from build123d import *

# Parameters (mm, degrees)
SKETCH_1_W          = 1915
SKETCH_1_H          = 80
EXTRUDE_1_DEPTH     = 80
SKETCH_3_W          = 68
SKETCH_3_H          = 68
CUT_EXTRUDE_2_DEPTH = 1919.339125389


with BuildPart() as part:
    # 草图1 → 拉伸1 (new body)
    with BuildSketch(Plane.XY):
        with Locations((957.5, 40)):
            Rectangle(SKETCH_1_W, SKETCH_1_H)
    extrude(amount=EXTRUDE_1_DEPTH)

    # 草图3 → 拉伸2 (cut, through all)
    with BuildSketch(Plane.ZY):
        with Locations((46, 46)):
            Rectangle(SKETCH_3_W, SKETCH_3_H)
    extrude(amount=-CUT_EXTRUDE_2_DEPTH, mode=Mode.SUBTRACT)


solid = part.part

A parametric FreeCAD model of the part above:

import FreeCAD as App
import Part
import Sketcher

V = App.Vector
Q = App.Units.Quantity

doc = App.newDocument("Part")
body = doc.addObject("PartDesign::Body", "Body")

sketch1 = doc.addObject("Sketcher::SketchObject", "Sketch")
body.addObject(sketch1)
sketch1.AttachmentSupport = (doc.XY_Plane, [""])
sketch1.MapMode = "FlatFace"
sketch1.addGeometry([
    Part.LineSegment(V(0, 80, 0), V(0, 0, 0)),
    Part.LineSegment(V(0, 0, 0), V(1915, 0, 0)),
    Part.LineSegment(V(1915, 0, 0), V(1915, 80, 0)),
    Part.LineSegment(V(1915, 80, 0), V(0, 80, 0)),
], False)
sketch1.addConstraint([
    Sketcher.Constraint("Coincident", 0, 2, 1, 1),
    Sketcher.Constraint("Coincident", 1, 2, 2, 1),
    Sketcher.Constraint("Coincident", 2, 2, 3, 1),
    Sketcher.Constraint("Coincident", 3, 2, 0, 1),
    Sketcher.Constraint("Vertical", 0),
    Sketcher.Constraint("Horizontal", 1),
    Sketcher.Constraint("Vertical", 2),
    Sketcher.Constraint("Horizontal", 3),
    Sketcher.Constraint("Coincident", 0, 2, -1, 1),
    Sketcher.Constraint("DistanceX", 1, 1, 1, 2, Q("1915 mm")),
    Sketcher.Constraint("DistanceY", 0, 2, 0, 1, Q("80 mm")),
])
pad1 = doc.addObject("PartDesign::Pad", "Pad")
body.addObject(pad1)
pad1.Profile = sketch1
pad1.Length = 80

sketch2 = doc.addObject("Sketcher::SketchObject", "Sketch001")
body.addObject(sketch2)
sketch2.AttachmentSupport = (doc.YZ_Plane, [""])
sketch2.MapMode = "FlatFace"
sketch2.addGeometry([
    Part.LineSegment(V(80, 12, 0), V(12, 12, 0)),
    Part.LineSegment(V(12, 12, 0), V(12, 80, 0)),
    Part.LineSegment(V(12, 80, 0), V(80, 80, 0)),
    Part.LineSegment(V(80, 80, 0), V(80, 12, 0)),
], False)
sketch2.addConstraint([
    Sketcher.Constraint("Coincident", 0, 2, 1, 1),
    Sketcher.Constraint("Coincident", 1, 2, 2, 1),
    Sketcher.Constraint("Coincident", 2, 2, 3, 1),
    Sketcher.Constraint("Coincident", 3, 2, 0, 1),
    Sketcher.Constraint("Horizontal", 0),
    Sketcher.Constraint("Vertical", 1),
    Sketcher.Constraint("Horizontal", 2),
    Sketcher.Constraint("Vertical", 3),
    Sketcher.Constraint("Equal", 2, 1),
    Sketcher.Constraint("DistanceX", 0, 2, 0, 1, Q("68 mm")),
    Sketcher.Constraint("DistanceX", -1, 1, 0, 2, Q("12 mm")),
    Sketcher.Constraint("DistanceY", -1, 1, 0, 2, Q("12 mm")),
])
pocket1 = doc.addObject("PartDesign::Pocket", "Pocket")
body.addObject(pocket1)
pocket1.Profile = sketch2
pocket1.Type = "ThroughAll"
pocket1.Reversed = True

doc.recompute()
